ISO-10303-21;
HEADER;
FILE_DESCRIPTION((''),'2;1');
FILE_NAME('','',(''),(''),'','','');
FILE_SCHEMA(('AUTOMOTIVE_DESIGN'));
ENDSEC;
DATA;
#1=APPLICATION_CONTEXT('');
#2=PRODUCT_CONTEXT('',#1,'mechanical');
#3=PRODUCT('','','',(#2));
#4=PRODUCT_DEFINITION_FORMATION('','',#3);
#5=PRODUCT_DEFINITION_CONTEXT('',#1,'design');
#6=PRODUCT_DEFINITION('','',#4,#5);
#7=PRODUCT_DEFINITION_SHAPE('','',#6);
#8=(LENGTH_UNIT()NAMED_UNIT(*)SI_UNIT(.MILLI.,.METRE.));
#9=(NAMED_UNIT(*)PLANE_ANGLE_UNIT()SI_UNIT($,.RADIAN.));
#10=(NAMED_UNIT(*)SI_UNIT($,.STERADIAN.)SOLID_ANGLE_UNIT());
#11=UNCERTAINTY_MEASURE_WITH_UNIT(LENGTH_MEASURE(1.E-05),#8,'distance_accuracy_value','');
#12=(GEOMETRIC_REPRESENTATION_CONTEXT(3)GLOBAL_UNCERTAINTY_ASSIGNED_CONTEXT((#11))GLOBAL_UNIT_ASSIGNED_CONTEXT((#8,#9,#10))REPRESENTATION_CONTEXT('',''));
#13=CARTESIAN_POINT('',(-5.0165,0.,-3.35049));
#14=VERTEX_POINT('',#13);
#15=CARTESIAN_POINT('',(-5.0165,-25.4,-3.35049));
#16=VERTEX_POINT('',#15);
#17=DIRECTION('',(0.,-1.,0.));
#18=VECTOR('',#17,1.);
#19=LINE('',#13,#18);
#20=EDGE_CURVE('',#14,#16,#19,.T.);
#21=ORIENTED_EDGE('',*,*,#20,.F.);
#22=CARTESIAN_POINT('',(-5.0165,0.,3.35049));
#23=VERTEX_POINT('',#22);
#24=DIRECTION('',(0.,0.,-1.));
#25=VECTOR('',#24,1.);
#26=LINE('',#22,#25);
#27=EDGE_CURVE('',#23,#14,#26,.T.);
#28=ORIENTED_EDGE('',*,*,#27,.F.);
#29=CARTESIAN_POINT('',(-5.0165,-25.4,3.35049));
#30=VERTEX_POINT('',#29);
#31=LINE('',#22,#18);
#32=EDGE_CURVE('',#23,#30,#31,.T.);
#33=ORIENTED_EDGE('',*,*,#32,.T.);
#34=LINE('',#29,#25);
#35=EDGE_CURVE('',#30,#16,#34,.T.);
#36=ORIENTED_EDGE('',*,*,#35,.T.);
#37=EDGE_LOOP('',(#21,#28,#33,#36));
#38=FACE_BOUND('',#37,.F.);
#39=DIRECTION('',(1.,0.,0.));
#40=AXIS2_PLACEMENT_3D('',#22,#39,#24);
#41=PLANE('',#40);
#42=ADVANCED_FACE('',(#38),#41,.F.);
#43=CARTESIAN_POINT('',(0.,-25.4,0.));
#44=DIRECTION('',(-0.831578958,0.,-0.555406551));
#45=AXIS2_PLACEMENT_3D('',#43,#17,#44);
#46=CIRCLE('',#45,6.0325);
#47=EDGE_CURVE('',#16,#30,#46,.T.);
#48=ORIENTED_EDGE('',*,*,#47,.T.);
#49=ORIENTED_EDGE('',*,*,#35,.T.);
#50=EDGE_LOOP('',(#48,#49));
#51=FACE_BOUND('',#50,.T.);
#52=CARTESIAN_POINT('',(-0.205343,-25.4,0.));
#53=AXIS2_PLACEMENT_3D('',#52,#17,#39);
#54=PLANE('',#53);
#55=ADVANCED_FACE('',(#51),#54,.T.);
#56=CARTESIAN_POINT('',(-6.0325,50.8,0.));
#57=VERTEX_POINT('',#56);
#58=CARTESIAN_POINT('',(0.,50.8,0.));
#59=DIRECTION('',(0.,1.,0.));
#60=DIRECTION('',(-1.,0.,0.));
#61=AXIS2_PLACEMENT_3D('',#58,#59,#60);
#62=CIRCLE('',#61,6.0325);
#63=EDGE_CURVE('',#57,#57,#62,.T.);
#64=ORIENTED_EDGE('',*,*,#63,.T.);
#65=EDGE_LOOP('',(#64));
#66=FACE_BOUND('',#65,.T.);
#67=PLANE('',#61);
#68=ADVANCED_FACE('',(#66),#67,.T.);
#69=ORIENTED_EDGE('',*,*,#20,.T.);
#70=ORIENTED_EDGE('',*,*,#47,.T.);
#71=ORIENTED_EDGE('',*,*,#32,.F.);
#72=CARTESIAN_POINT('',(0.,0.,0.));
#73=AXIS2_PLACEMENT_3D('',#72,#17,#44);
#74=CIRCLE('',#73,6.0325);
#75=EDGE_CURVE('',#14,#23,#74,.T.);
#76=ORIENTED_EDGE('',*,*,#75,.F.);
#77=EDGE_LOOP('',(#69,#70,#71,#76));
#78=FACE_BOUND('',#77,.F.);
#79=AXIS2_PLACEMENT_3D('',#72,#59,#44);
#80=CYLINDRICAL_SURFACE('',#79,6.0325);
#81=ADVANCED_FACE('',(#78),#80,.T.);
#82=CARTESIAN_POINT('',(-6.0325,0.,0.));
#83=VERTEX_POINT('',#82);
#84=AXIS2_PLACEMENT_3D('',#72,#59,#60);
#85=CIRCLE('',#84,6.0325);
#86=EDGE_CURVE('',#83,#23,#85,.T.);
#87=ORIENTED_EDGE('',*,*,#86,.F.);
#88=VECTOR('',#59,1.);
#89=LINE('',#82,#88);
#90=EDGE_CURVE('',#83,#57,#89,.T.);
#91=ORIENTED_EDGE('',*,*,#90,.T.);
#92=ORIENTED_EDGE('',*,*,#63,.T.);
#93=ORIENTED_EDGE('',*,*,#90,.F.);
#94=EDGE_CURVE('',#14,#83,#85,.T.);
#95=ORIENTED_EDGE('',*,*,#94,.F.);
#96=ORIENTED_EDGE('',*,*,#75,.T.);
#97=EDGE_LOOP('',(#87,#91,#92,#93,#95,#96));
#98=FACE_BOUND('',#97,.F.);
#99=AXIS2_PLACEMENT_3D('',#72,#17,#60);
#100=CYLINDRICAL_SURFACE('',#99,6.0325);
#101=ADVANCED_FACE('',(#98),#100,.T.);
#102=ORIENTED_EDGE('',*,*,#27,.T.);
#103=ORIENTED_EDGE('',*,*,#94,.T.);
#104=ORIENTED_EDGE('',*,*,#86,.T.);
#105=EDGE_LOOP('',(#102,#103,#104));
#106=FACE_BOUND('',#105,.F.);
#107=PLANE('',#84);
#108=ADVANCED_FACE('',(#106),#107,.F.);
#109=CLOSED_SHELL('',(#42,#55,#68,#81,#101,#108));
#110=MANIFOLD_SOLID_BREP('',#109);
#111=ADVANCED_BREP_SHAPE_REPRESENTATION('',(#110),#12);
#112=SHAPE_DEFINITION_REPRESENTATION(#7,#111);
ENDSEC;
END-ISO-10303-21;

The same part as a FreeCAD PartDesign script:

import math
import FreeCAD as App
import Part
import Sketcher
Q = App.Units.Quantity

doc = App.newDocument("Part")
params = doc.addObject("Spreadsheet::Sheet", "Params")
for row, (alias, value) in enumerate([
    ("pad1_length", "1 in"),
    ("sketch2_diameter", "0.475 in"),
    ("pad2_length", "2 in"),
], start=1):
    params.set(f"A{row}", alias)
    params.set(f"B{row}", "=" + value)
    params.setAlias(f"B{row}", alias)

body = doc.addObject("PartDesign::Body", "Body")

sketch1 = body.newObject("Sketcher::SketchObject", "Sketch")
sketch1.AttachmentSupport = (doc.getObject("XZ_Plane"), [""])
sketch1.MapMode = "FlatFace"
sketch1.addGeometry(Part.LineSegment(App.Vector(-5, 3, 0), App.Vector(-5, -3, 0)), False)
sketch1.addGeometry(Part.ArcOfCircle(Part.Circle(App.Vector(0, 0, 0), App.Vector(0, 0, 1), 6), math.radians(-146), math.radians(146)), False)
sketch1.addConstraint(Sketcher.Constraint("Coincident", 0, 1, 1, 2))
sketch1.addConstraint(Sketcher.Constraint("Coincident", 1, 1, 0, 2))
sketch1.addConstraint(Sketcher.Constraint("Vertical", 0))
sketch1.addConstraint(Sketcher.Constraint("Coincident", 1, 3, -1, 1))
sketch1.addConstraint(Sketcher.Constraint("Radius", 1, Q("0.2375 in")))
sketch1.addConstraint(Sketcher.Constraint("DistanceX", 0, 1, -1, 1, Q("0.1975 in")))
pad1 = body.newObject("PartDesign::Pad", "Pad")
pad1.Profile = sketch1
pad1.setExpression("Length", "Params.pad1_length")

sketch2 = body.newObject("Sketcher::SketchObject", "Sketch001")
sketch2.AttachmentSupport = (doc.getObject("XZ_Plane"), [""])
sketch2.MapMode = "FlatFace"
sketch2.addGeometry(Part.Circle(App.Vector(0, 0, 0), App.Vector(0, 0, 1), 6), False)
sketch2.addConstraint(Sketcher.Constraint("Coincident", 0, 3, -1, 1))
sketch2.addConstraint(Sketcher.Constraint("Diameter", 0, Q("0.475 in")))
sketch2.setExpression("Constraints[1]", "Params.sketch2_diameter")
pad2 = body.newObject("PartDesign::Pad", "Pad001")
pad2.Profile = sketch2
pad2.setExpression("Length", "Params.pad2_length")
pad2.Reversed = True

doc.recompute()
